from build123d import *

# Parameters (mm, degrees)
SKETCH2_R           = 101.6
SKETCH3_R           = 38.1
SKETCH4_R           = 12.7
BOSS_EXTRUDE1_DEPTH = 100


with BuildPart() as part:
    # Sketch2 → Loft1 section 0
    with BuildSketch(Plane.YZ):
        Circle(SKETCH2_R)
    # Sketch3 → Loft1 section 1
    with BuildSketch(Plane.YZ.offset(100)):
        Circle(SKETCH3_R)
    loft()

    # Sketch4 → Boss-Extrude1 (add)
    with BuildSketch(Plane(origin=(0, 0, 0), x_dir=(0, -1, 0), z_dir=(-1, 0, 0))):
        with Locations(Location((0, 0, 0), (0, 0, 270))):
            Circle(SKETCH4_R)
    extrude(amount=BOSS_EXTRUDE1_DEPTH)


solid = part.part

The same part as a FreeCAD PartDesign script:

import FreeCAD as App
import Part
import Sketcher
Q = App.Units.Quantity

doc = App.newDocument("Part")
params = doc.addObject("Spreadsheet::Sheet", "Params")
for row, (alias, value) in enumerate([
    ("sketch1_diameter", "8 in"),
    ("sketch2_diameter", "3 in"),
    ("sketch3_diameter", "1 in"),
    ("pad1_length", "100 mm"),
], start=1):
    params.set(f"A{row}", alias)
    params.set(f"B{row}", "=" + value)
    params.setAlias(f"B{row}", alias)

body = doc.addObject("PartDesign::Body", "Body")

# Sketch on YZ plane
sketch1 = body.newObject("Sketcher::SketchObject", "Sketch")
sketch1.AttachmentSupport = (doc.getObject("YZ_Plane"), [""])
sketch1.MapMode = "FlatFace"
sketch1.addGeometry(Part.Circle(App.Vector(0, 0, 0), App.Vector(0, 0, 1), 102), False)
sketch1.addConstraint(Sketcher.Constraint("Coincident", 0, 3, -1, 1))
sketch1.addConstraint(Sketcher.Constraint("Diameter", 0, Q("8 in")))
sketch1.setExpression("Constraints[1]", "Params.sketch1_diameter")

# Sketch on YZ plane
sketch2 = body.newObject("Sketcher::SketchObject", "Sketch001")
sketch2.AttachmentSupport = (doc.getObject("YZ_Plane"), [""])
sketch2.MapMode = "FlatFace"
sketch2.AttachmentOffset = App.Placement(App.Vector(0, 0, 100), App.Rotation())
sketch2.addGeometry(Part.Circle(App.Vector(0, 0, 0), App.Vector(0, 0, 1), 38), False)
sketch2.addConstraint(Sketcher.Constraint("Coincident", 0, 3, -1, 1))
sketch2.addConstraint(Sketcher.Constraint("Diameter", 0, Q("3 in")))
sketch2.setExpression("Constraints[1]", "Params.sketch2_diameter")

additiveloft = body.newObject("PartDesign::AdditiveLoft", "AdditiveLoft")
additiveloft.Profile = sketch1
additiveloft.Sections = [sketch2]

# Sketch on YZ plane
sketch3 = body.newObject("Sketcher::SketchObject", "Sketch002")
sketch3.AttachmentSupport = (doc.getObject("YZ_Plane"), [""])
sketch3.MapMode = "FlatFace"
sketch3.addGeometry(Part.Circle(App.Vector(0, 0, 0), App.Vector(0, 0, 1), 13), False)
sketch3.addConstraint(Sketcher.Constraint("Coincident", 0, 3, -1, 1))
sketch3.addConstraint(Sketcher.Constraint("Diameter", 0, Q("1 in")))
sketch3.setExpression("Constraints[1]", "Params.sketch3_diameter")
pad1 = body.newObject("PartDesign::Pad", "Pad")
pad1.Profile = sketch3
pad1.setExpression("Length", "Params.pad1_length")
pad1.Reversed = True

doc.recompute()
